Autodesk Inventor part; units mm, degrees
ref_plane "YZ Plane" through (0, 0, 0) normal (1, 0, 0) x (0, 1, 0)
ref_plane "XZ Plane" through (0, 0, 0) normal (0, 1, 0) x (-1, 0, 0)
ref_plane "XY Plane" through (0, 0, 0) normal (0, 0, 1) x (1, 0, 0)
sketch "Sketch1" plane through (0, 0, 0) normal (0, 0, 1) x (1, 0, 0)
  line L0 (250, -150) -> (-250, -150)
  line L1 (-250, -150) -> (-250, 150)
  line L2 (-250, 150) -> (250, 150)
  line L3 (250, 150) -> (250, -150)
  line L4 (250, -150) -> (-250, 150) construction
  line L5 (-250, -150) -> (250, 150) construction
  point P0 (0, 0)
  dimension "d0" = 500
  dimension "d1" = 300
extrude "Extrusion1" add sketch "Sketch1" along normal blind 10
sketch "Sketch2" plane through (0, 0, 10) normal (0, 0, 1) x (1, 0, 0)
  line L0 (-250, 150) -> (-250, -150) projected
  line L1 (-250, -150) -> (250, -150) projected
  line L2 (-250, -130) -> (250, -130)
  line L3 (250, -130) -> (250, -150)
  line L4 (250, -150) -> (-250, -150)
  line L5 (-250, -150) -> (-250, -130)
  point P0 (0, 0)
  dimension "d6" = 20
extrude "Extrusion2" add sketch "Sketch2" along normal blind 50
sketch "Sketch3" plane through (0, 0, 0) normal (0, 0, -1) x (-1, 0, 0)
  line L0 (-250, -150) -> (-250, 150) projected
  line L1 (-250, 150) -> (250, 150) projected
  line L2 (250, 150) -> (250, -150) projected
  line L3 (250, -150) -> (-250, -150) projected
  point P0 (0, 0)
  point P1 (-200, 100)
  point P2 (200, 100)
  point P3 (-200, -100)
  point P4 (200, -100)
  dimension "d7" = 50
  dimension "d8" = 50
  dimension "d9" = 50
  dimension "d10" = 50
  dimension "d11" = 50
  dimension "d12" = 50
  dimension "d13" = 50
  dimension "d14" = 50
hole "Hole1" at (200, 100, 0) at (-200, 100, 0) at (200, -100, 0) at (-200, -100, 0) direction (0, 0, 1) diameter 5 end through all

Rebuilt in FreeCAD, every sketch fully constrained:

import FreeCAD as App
import Part
import Sketcher
from FreeCAD import Vector


def add_polygon(sketch, points):
    """Adds a closed chain of lines whose ends are joined by coincident constraints."""
    first, n = sketch.GeometryCount, len(points)
    for a, b in zip(points, points[1:] + points[:1]):
        sketch.addGeometry(Part.LineSegment(App.Vector(*a, 0), App.Vector(*b, 0)), False)
    for i in range(n):
        sketch.addConstraint(Sketcher.Constraint("Coincident", first + i, 2, first + (i + 1) % n, 1))

doc = App.newDocument("Part")
body = doc.addObject("PartDesign::Body", "Body")

# Sketch on XY plane
sketch1 = body.newObject("Sketcher::SketchObject", "Sketch")
sketch1.AttachmentSupport = (doc.getObject("XY_Plane"), [""])
sketch1.MapMode = "FlatFace"
add_polygon(sketch1, [(-250, -150), (250, -150), (250, 150), (-250, 150)])  # lines 0-3
sketch1.addConstraint([
    Sketcher.Constraint("Horizontal", 0),
    Sketcher.Constraint("Vertical", 1),
    Sketcher.Constraint("Horizontal", 2),
    Sketcher.Constraint("Vertical", 3),
    Sketcher.Constraint("Symmetric", 0, 2, 2, 2, -1, 1),
    Sketcher.Constraint("DistanceX", 0, 1, 0, 2, 500.0),
    Sketcher.Constraint("DistanceY", 1, 1, 1, 2, 300.0),
])
pad1 = body.newObject("PartDesign::Pad", "Pad")
pad1.Profile = sketch1
pad1.Length = 10

# Sketch on XY plane
sketch2 = body.newObject("Sketcher::SketchObject", "Sketch001")
sketch2.AttachmentSupport = (doc.getObject("XY_Plane"), [""])
sketch2.MapMode = "FlatFace"
sketch2.AttachmentOffset = App.Placement(Vector(0, 0, 10), App.Rotation())
add_polygon(sketch2, [(250, -130), (-250, -130), (-250, -150), (250, -150)])  # lines 0-3
sketch2.addConstraint([
    Sketcher.Constraint("Horizontal", 0),
    Sketcher.Constraint("Vertical", 1),
    Sketcher.Constraint("Horizontal", 2),
    Sketcher.Constraint("Vertical", 3),
    Sketcher.Constraint("DistanceY", 1, 2, 1, 1, 20.0),
    Sketcher.Constraint("DistanceX", 0, 2, 0, 1, 500.0),
    Sketcher.Constraint("DistanceX", 0, 2, -1, 1, 250.0),
    Sketcher.Constraint("DistanceY", 0, 2, -1, 1, 130.0),
])
pad2 = body.newObject("PartDesign::Pad", "Pad001")
pad2.Profile = sketch2
pad2.Length = 50

# Sketch on XY plane
sketch3 = body.newObject("Sketcher::SketchObject", "Sketch002")
sketch3.AttachmentSupport = (doc.getObject("XY_Plane"), [""])
sketch3.MapMode = "FlatFace"
sketch3.addGeometry([
    Part.Circle(Vector(200, 100, 0), Vector(0, 0, 1), 2.5),
    Part.Circle(Vector(-200, 100, 0), Vector(0, 0, 1), 2.5),
    Part.Circle(Vector(200, -100, 0), Vector(0, 0, 1), 2.5),
    Part.Circle(Vector(-200, -100, 0), Vector(0, 0, 1), 2.5),
], False)
sketch3.addConstraint([
    Sketcher.Constraint("Equal", 0, 1),
    Sketcher.Constraint("Equal", 1, 2),
    Sketcher.Constraint("Equal", 2, 3),
    Sketcher.Constraint("Symmetric", 1, 3, 2, 3, -1, 1),
    Sketcher.Constraint("Symmetric", 0, 3, 3, 3, -1, 1),
    Sketcher.Constraint("Symmetric", 0, 3, 1, 3, -2),
    Sketcher.Constraint("Diameter", 0, 5.0),
    Sketcher.Constraint("DistanceX", -1, 1, 0, 3, 200.0),
    Sketcher.Constraint("DistanceY", -1, 1, 0, 3, 100.0),
])
doc.recompute()
hole = body.newObject("PartDesign::Hole", "Hole")
hole.Profile = sketch3
hole.ThreadType = "None"
hole.Diameter = 5
hole.DepthType = "ThroughAll"
hole.Reversed = True

doc.recompute()
